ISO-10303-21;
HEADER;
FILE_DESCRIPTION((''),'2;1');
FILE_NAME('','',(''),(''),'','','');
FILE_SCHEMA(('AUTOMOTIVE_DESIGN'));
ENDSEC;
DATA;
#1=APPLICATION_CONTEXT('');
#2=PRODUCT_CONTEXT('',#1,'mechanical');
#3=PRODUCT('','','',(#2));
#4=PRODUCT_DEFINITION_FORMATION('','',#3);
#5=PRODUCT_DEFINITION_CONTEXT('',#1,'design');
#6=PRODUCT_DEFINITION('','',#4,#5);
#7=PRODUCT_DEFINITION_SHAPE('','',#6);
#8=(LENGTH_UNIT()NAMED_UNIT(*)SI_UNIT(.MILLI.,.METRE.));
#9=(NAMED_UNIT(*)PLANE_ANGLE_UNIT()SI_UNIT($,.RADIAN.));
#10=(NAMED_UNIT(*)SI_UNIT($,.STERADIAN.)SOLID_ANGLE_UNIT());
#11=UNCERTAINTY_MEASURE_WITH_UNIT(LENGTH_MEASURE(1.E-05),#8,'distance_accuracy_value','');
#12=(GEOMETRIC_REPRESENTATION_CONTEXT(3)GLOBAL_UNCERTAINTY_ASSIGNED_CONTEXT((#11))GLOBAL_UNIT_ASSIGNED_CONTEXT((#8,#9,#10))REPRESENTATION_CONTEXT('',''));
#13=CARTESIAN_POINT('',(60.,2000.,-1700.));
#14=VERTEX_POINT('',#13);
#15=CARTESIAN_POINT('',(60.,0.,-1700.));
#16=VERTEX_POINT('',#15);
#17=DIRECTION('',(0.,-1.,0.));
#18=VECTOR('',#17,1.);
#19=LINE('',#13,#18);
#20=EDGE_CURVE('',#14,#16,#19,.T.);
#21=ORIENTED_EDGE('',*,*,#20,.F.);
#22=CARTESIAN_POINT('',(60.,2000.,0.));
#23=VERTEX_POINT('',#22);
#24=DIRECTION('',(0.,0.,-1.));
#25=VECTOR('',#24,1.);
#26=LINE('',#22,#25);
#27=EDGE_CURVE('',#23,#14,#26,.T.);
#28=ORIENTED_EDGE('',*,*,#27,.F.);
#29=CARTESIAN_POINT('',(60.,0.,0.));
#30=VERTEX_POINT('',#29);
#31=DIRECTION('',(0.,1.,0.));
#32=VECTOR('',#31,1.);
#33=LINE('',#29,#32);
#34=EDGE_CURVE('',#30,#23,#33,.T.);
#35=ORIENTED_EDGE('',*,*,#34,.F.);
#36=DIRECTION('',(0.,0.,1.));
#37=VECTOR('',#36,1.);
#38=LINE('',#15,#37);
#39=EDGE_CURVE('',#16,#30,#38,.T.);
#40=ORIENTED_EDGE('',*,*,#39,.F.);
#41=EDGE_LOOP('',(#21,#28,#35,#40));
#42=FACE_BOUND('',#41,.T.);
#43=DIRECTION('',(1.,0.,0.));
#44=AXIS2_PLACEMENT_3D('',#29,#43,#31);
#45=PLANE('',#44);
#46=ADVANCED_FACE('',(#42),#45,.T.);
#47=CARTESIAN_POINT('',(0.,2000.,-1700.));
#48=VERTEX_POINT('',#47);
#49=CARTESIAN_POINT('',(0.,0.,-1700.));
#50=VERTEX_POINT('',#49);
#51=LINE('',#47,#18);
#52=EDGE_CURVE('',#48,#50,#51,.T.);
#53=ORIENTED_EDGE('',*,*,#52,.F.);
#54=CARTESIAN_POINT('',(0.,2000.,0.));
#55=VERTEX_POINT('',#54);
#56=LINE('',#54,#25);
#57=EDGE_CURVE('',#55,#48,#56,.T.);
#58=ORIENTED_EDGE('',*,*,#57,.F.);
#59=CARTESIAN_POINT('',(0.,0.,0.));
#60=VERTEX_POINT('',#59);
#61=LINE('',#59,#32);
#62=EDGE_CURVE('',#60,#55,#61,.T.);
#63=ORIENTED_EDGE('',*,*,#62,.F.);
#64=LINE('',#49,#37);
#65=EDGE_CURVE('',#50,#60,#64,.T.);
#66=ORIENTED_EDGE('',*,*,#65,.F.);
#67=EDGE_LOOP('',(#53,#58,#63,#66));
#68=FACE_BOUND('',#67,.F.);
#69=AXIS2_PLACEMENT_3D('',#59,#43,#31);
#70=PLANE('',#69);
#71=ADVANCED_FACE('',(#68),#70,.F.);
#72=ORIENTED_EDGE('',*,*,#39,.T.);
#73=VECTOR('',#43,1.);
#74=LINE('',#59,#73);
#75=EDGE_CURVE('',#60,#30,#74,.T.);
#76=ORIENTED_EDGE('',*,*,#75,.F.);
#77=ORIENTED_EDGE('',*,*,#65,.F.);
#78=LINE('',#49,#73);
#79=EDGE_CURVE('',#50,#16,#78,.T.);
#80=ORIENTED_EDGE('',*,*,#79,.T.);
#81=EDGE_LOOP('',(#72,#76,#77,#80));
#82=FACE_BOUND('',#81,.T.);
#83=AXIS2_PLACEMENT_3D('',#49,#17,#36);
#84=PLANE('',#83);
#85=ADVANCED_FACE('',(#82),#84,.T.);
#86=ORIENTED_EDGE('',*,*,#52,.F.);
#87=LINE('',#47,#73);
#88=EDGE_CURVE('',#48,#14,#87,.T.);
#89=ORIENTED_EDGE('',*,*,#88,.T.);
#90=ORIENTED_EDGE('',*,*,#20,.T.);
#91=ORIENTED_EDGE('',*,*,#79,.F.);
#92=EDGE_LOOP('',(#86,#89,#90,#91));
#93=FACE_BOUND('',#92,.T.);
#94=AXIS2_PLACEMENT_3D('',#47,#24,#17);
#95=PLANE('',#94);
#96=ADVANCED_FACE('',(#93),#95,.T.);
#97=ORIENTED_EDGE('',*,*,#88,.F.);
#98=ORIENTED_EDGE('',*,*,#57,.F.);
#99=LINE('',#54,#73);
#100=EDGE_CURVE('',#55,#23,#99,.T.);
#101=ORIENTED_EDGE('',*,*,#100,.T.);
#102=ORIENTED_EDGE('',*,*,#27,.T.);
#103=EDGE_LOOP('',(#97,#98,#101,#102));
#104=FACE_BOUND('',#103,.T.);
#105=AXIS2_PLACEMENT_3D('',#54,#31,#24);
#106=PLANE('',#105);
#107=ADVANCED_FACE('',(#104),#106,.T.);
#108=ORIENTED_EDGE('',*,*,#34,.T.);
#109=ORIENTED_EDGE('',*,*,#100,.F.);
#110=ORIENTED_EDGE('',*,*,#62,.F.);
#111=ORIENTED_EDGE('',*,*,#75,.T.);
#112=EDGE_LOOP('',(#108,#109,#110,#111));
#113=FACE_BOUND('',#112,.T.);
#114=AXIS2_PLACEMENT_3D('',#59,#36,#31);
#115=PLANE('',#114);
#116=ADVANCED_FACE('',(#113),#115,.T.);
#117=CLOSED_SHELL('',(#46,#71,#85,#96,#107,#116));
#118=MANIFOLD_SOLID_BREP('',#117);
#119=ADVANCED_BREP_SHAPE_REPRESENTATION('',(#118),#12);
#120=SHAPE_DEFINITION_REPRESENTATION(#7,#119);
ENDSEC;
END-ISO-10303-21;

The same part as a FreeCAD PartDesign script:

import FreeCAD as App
import Part
import Sketcher
from FreeCAD import Vector
Q = App.Units.Quantity

doc = App.newDocument("Part")
params = doc.addObject("Spreadsheet::Sheet", "Params")
for row, (alias, value) in enumerate([
    ("sketch1_width", "2000 mm"),
    ("sketch1_height", "1700 mm"),
    ("pad1_length", "60 mm"),
], start=1):
    params.set(f"A{row}", alias)
    params.set(f"B{row}", "=" + value)
    params.setAlias(f"B{row}", alias)

body = doc.addObject("PartDesign::Body", "Body")

sketch1 = body.newObject("Sketcher::SketchObject", "Sketch")
sketch1.AttachmentSupport = (doc.getObject("YZ_Plane"), [""])
sketch1.MapMode = "FlatFace"
sketch1.addGeometry([
    Part.LineSegment(Vector(2000, 0, 0), Vector(0, 0, 0)),
    Part.LineSegment(Vector(0, 0, 0), Vector(0, -1700, 0)),
    Part.LineSegment(Vector(0, -1700, 0), Vector(2000, -1700, 0)),
    Part.LineSegment(Vector(2000, -1700, 0), Vector(2000, 0, 0)),
], False)
sketch1.addConstraint([
    Sketcher.Constraint("Coincident", 0, 2, 1, 1),
    Sketcher.Constraint("Coincident", 1, 2, 2, 1),
    Sketcher.Constraint("Coincident", 2, 2, 3, 1),
    Sketcher.Constraint("Coincident", 3, 2, 0, 1),
    Sketcher.Constraint("Horizontal", 0),
    Sketcher.Constraint("Vertical", 1),
    Sketcher.Constraint("Horizontal", 2),
    Sketcher.Constraint("Vertical", 3),
    Sketcher.Constraint("Coincident", 0, 2, -1, 1),
    Sketcher.Constraint("DistanceX", 0, 2, 0, 1, Q("2000 mm")),
    Sketcher.Constraint("DistanceY", 1, 2, 1, 1, Q("1700 mm")),
])
sketch1.setExpression("Constraints[9]", "Params.sketch1_width")
sketch1.setExpression("Constraints[10]", "Params.sketch1_height")
pad1 = body.newObject("PartDesign::Pad", "Pad")
pad1.Profile = sketch1
pad1.setExpression("Length", "Params.pad1_length")

doc.recompute()
